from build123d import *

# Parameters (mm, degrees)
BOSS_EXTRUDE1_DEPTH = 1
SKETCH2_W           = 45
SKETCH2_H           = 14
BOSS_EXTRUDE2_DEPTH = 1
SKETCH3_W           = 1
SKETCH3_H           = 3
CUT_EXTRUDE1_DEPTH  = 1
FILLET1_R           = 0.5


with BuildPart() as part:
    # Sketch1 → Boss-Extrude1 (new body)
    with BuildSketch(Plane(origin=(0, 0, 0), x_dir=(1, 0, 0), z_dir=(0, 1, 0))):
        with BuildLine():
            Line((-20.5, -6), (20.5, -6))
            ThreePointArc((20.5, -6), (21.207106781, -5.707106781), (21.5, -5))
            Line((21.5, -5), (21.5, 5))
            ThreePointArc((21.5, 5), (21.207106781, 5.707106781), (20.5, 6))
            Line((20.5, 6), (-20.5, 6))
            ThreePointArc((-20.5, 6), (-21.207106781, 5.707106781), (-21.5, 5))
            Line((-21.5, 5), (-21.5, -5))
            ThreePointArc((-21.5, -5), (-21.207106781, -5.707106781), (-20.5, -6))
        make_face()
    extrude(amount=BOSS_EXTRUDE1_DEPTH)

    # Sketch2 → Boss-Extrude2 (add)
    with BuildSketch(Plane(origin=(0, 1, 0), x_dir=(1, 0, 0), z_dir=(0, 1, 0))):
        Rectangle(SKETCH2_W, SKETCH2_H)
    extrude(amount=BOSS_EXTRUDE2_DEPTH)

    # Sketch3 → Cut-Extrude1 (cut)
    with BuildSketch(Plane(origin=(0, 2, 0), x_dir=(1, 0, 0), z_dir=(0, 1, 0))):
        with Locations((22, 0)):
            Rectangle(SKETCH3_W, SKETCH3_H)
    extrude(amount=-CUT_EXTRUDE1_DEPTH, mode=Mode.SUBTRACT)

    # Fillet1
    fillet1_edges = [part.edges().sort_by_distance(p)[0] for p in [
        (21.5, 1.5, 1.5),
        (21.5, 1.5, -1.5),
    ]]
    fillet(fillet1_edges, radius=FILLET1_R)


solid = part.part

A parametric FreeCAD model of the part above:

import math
import FreeCAD as App
import Part
import Sketcher

V = App.Vector


def edges_at(feature, points):
    """Names of the edges that pass closest to the given points."""
    edges = feature.Shape.Edges
    near = lambda p: min(range(len(edges)), key=lambda i: edges[i].distToShape(Part.Vertex(*p))[0])
    return sorted({f"Edge{near(p) + 1}" for p in points})


def add_polygon(sketch, points):
    """Adds a closed chain of lines whose ends are joined by coincident constraints."""
    first, n = sketch.GeometryCount, len(points)
    for a, b in zip(points, points[1:] + points[:1]):
        sketch.addGeometry(Part.LineSegment(App.Vector(*a, 0), App.Vector(*b, 0)), False)
    for i in range(n):
        sketch.addConstraint(Sketcher.Constraint("Coincident", first + i, 2, first + (i + 1) % n, 1))

doc = App.newDocument("Part")
body = doc.addObject("PartDesign::Body", "Body")

# Sketch on XZ plane
sketch1 = body.newObject("Sketcher::SketchObject", "Sketch")
sketch1.AttachmentSupport = (doc.getObject("XZ_Plane"), [""])
sketch1.MapMode = "FlatFace"
sketch1.addGeometry([
    Part.LineSegment(V(-20.5, 6, 0), V(20.5, 6, 0)),  # 0
    Part.ArcOfCircle(Part.Circle(V(20.5, 5, 0), V(0, 0, 1), 1), math.radians(0), math.radians(90)),  # 1
    Part.LineSegment(V(21.5, 5, 0), V(21.5, -5, 0)),  # 2
    Part.ArcOfCircle(Part.Circle(V(20.5, -5, 0), V(0, 0, 1), 1), math.radians(-90), math.radians(0)),  # 3
    Part.LineSegment(V(20.5, -6, 0), V(-20.5, -6, 0)),  # 4
    Part.ArcOfCircle(Part.Circle(V(-20.5, -5, 0), V(0, 0, 1), 1), math.radians(-180), math.radians(-90)),  # 5
    Part.LineSegment(V(-21.5, -5, 0), V(-21.5, 5, 0)),  # 6
    Part.ArcOfCircle(Part.Circle(V(-20.5, 5, 0), V(0, 0, 1), 1), math.radians(90), math.radians(180)),  # 7
], False)
sketch1.addConstraint([
    Sketcher.Constraint("Tangent", 0, 2, 1, 2),
    Sketcher.Constraint("Tangent", 1, 1, 2, 1),
    Sketcher.Constraint("Tangent", 2, 2, 3, 2),
    Sketcher.Constraint("Tangent", 3, 1, 4, 1),
    Sketcher.Constraint("Tangent", 4, 2, 5, 2),
    Sketcher.Constraint("Tangent", 5, 1, 6, 1),
    Sketcher.Constraint("Tangent", 6, 2, 7, 2),
    Sketcher.Constraint("Tangent", 7, 1, 0, 1),
    Sketcher.Constraint("Horizontal", 0),
    Sketcher.Constraint("Vertical", 2),
    Sketcher.Constraint("Horizontal", 4),
    Sketcher.Constraint("Vertical", 6),
    Sketcher.Constraint("Equal", 1, 3),
    Sketcher.Constraint("Equal", 3, 5),
    Sketcher.Constraint("Equal", 5, 7),
    Sketcher.Constraint("Symmetric", 1, 3, 5, 3, -1, 1),
    Sketcher.Constraint("Radius", 1, 1.0),
    Sketcher.Constraint("DistanceX", 0, 1, 0, 2, 41.0),
    Sketcher.Constraint("DistanceY", 2, 2, 2, 1, 10.0),
])
pad1 = body.newObject("PartDesign::Pad", "Pad")
pad1.Profile = sketch1
pad1.Length = 1
pad1.Reversed = True

# Sketch on XZ plane
sketch2 = body.newObject("Sketcher::SketchObject", "Sketch001")
sketch2.AttachmentSupport = (doc.getObject("XZ_Plane"), [""])
sketch2.MapMode = "FlatFace"
sketch2.AttachmentOffset = App.Placement(V(0, 0, -1), App.Rotation())
add_polygon(sketch2, [(-22, -7), (-22, 7), (22, 7), (22, -7)])  # lines 0-3
sketch2.addConstraint([
    Sketcher.Constraint("Vertical", 0),
    Sketcher.Constraint("Horizontal", 1),
    Sketcher.Constraint("Vertical", 2),
    Sketcher.Constraint("Horizontal", 3),
    Sketcher.Constraint("Symmetric", 0, 2, 2, 2, -1, 1),
    Sketcher.Constraint("DistanceX", 1, 1, 1, 2, 45.0),
    Sketcher.Constraint("DistanceY", 0, 1, 0, 2, 14.0),
])
pad2 = body.newObject("PartDesign::Pad", "Pad001")
pad2.Profile = sketch2
pad2.Length = 1
pad2.Reversed = True

# Sketch on XZ plane
sketch3 = body.newObject("Sketcher::SketchObject", "Sketch002")
sketch3.AttachmentSupport = (doc.getObject("XZ_Plane"), [""])
sketch3.MapMode = "FlatFace"
sketch3.AttachmentOffset = App.Placement(V(0, 0, -2), App.Rotation())
add_polygon(sketch3, [(21.5, -1.5), (21.5, 1.5), (22.5, 1.5), (22.5, -1.5)])  # lines 0-3
sketch3.addConstraint([
    Sketcher.Constraint("Vertical", 0),
    Sketcher.Constraint("Horizontal", 1),
    Sketcher.Constraint("Vertical", 2),
    Sketcher.Constraint("Horizontal", 3),
    Sketcher.Constraint("DistanceX", 1, 1, 1, 2, 1.0),
    Sketcher.Constraint("DistanceY", 0, 1, 0, 2, 3.0),
    Sketcher.Constraint("DistanceX", -1, 1, 0, 2, 21.5),
    Sketcher.Constraint("DistanceY", -1, 1, 0, 2, 1.5),
])
pocket1 = body.newObject("PartDesign::Pocket", "Pocket")
pocket1.Profile = sketch3
pocket1.Length = 1
pocket1.Reversed = True
doc.recompute()

fillet = body.newObject("PartDesign::Fillet", "Fillet")
fillet.Base = (pocket1, edges_at(pocket1, [(21.5, 1.5, 1.5), (21.5, 1.5, -1.5)]))
fillet.Radius = 0.5

doc.recompute()
